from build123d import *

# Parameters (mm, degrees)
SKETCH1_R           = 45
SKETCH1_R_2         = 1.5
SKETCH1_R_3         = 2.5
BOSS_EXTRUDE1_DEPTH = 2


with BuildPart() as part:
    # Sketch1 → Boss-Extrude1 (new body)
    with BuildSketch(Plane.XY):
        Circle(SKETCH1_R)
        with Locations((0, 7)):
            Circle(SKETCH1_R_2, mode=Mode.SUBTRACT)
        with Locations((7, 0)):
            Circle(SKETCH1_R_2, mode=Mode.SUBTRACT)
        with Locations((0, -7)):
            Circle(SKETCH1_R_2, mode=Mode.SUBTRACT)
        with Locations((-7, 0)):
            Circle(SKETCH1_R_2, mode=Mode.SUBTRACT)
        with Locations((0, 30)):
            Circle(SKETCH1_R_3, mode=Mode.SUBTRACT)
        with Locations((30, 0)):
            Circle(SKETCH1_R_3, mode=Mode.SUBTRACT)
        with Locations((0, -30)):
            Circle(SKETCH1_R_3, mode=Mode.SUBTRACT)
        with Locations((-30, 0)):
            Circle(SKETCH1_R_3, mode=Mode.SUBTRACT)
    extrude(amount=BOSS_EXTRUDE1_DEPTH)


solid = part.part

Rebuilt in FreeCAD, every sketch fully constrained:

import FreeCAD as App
import Part
import Sketcher

V = App.Vector

doc = App.newDocument("Part")
body = doc.addObject("PartDesign::Body", "Body")

sketch1 = doc.addObject("Sketcher::SketchObject", "Sketch")
body.addObject(sketch1)
sketch1.AttachmentSupport = (doc.XY_Plane, [""])
sketch1.MapMode = "FlatFace"
sketch1.addGeometry([
    Part.Circle(V(0, 0, 0), V(0, 0, 1), 45),
    Part.Circle(V(0, -30, 0), V(0, 0, 1), 2.5),
    Part.Circle(V(0, -7, 0), V(0, 0, 1), 1.5),
    Part.Circle(V(-30, 0, 0), V(0, 0, 1), 2.5),
    Part.Circle(V(-7, 0, 0), V(0, 0, 1), 1.5),
    Part.Circle(V(7, 0, 0), V(0, 0, 1), 1.5),
    Part.Circle(V(0, 7, 0), V(0, 0, 1), 1.5),
    Part.Circle(V(30, 0, 0), V(0, 0, 1), 2.5),
    Part.Circle(V(0, 30, 0), V(0, 0, 1), 2.5),
], False)
sketch1.addConstraint([
    Sketcher.Constraint("Coincident", 0, 3, -1, 1),
    Sketcher.Constraint("Equal", 1, 3),
    Sketcher.Constraint("Equal", 2, 4),
    Sketcher.Constraint("Equal", 4, 5),
    Sketcher.Constraint("Equal", 5, 6),
    Sketcher.Constraint("Equal", 3, 7),
    Sketcher.Constraint("Equal", 7, 8),
    Sketcher.Constraint("Symmetric", 4, 3, 5, 3, -1, 1),
    Sketcher.Constraint("Symmetric", 2, 3, 6, 3, -1, 1),
    Sketcher.Constraint("Symmetric", 3, 3, 7, 3, -1, 1),
    Sketcher.Constraint("Symmetric", 1, 3, 8, 3, -1, 1),
    Sketcher.Constraint("PointOnObject", 1, 3, -2),
    Sketcher.Constraint("PointOnObject", 2, 3, -2),
    Sketcher.Constraint("PointOnObject", 3, 3, -1),
    Sketcher.Constraint("PointOnObject", 4, 3, -1),
    Sketcher.Constraint("Diameter", 0, 90.0),
    Sketcher.Constraint("Diameter", 1, 5.0),
    Sketcher.Constraint("Diameter", 2, 3.0),
    Sketcher.Constraint("DistanceY", 1, 3, -1, 1, 30.0),
    Sketcher.Constraint("DistanceY", 2, 3, -1, 1, 7.0),
    Sketcher.Constraint("DistanceX", 3, 3, -1, 1, 30.0),
    Sketcher.Constraint("DistanceX", 4, 3, -1, 1, 7.0),
])
pad1 = doc.addObject("PartDesign::Pad", "Pad")
body.addObject(pad1)
pad1.Profile = sketch1
pad1.Length = 2

doc.recompute()
